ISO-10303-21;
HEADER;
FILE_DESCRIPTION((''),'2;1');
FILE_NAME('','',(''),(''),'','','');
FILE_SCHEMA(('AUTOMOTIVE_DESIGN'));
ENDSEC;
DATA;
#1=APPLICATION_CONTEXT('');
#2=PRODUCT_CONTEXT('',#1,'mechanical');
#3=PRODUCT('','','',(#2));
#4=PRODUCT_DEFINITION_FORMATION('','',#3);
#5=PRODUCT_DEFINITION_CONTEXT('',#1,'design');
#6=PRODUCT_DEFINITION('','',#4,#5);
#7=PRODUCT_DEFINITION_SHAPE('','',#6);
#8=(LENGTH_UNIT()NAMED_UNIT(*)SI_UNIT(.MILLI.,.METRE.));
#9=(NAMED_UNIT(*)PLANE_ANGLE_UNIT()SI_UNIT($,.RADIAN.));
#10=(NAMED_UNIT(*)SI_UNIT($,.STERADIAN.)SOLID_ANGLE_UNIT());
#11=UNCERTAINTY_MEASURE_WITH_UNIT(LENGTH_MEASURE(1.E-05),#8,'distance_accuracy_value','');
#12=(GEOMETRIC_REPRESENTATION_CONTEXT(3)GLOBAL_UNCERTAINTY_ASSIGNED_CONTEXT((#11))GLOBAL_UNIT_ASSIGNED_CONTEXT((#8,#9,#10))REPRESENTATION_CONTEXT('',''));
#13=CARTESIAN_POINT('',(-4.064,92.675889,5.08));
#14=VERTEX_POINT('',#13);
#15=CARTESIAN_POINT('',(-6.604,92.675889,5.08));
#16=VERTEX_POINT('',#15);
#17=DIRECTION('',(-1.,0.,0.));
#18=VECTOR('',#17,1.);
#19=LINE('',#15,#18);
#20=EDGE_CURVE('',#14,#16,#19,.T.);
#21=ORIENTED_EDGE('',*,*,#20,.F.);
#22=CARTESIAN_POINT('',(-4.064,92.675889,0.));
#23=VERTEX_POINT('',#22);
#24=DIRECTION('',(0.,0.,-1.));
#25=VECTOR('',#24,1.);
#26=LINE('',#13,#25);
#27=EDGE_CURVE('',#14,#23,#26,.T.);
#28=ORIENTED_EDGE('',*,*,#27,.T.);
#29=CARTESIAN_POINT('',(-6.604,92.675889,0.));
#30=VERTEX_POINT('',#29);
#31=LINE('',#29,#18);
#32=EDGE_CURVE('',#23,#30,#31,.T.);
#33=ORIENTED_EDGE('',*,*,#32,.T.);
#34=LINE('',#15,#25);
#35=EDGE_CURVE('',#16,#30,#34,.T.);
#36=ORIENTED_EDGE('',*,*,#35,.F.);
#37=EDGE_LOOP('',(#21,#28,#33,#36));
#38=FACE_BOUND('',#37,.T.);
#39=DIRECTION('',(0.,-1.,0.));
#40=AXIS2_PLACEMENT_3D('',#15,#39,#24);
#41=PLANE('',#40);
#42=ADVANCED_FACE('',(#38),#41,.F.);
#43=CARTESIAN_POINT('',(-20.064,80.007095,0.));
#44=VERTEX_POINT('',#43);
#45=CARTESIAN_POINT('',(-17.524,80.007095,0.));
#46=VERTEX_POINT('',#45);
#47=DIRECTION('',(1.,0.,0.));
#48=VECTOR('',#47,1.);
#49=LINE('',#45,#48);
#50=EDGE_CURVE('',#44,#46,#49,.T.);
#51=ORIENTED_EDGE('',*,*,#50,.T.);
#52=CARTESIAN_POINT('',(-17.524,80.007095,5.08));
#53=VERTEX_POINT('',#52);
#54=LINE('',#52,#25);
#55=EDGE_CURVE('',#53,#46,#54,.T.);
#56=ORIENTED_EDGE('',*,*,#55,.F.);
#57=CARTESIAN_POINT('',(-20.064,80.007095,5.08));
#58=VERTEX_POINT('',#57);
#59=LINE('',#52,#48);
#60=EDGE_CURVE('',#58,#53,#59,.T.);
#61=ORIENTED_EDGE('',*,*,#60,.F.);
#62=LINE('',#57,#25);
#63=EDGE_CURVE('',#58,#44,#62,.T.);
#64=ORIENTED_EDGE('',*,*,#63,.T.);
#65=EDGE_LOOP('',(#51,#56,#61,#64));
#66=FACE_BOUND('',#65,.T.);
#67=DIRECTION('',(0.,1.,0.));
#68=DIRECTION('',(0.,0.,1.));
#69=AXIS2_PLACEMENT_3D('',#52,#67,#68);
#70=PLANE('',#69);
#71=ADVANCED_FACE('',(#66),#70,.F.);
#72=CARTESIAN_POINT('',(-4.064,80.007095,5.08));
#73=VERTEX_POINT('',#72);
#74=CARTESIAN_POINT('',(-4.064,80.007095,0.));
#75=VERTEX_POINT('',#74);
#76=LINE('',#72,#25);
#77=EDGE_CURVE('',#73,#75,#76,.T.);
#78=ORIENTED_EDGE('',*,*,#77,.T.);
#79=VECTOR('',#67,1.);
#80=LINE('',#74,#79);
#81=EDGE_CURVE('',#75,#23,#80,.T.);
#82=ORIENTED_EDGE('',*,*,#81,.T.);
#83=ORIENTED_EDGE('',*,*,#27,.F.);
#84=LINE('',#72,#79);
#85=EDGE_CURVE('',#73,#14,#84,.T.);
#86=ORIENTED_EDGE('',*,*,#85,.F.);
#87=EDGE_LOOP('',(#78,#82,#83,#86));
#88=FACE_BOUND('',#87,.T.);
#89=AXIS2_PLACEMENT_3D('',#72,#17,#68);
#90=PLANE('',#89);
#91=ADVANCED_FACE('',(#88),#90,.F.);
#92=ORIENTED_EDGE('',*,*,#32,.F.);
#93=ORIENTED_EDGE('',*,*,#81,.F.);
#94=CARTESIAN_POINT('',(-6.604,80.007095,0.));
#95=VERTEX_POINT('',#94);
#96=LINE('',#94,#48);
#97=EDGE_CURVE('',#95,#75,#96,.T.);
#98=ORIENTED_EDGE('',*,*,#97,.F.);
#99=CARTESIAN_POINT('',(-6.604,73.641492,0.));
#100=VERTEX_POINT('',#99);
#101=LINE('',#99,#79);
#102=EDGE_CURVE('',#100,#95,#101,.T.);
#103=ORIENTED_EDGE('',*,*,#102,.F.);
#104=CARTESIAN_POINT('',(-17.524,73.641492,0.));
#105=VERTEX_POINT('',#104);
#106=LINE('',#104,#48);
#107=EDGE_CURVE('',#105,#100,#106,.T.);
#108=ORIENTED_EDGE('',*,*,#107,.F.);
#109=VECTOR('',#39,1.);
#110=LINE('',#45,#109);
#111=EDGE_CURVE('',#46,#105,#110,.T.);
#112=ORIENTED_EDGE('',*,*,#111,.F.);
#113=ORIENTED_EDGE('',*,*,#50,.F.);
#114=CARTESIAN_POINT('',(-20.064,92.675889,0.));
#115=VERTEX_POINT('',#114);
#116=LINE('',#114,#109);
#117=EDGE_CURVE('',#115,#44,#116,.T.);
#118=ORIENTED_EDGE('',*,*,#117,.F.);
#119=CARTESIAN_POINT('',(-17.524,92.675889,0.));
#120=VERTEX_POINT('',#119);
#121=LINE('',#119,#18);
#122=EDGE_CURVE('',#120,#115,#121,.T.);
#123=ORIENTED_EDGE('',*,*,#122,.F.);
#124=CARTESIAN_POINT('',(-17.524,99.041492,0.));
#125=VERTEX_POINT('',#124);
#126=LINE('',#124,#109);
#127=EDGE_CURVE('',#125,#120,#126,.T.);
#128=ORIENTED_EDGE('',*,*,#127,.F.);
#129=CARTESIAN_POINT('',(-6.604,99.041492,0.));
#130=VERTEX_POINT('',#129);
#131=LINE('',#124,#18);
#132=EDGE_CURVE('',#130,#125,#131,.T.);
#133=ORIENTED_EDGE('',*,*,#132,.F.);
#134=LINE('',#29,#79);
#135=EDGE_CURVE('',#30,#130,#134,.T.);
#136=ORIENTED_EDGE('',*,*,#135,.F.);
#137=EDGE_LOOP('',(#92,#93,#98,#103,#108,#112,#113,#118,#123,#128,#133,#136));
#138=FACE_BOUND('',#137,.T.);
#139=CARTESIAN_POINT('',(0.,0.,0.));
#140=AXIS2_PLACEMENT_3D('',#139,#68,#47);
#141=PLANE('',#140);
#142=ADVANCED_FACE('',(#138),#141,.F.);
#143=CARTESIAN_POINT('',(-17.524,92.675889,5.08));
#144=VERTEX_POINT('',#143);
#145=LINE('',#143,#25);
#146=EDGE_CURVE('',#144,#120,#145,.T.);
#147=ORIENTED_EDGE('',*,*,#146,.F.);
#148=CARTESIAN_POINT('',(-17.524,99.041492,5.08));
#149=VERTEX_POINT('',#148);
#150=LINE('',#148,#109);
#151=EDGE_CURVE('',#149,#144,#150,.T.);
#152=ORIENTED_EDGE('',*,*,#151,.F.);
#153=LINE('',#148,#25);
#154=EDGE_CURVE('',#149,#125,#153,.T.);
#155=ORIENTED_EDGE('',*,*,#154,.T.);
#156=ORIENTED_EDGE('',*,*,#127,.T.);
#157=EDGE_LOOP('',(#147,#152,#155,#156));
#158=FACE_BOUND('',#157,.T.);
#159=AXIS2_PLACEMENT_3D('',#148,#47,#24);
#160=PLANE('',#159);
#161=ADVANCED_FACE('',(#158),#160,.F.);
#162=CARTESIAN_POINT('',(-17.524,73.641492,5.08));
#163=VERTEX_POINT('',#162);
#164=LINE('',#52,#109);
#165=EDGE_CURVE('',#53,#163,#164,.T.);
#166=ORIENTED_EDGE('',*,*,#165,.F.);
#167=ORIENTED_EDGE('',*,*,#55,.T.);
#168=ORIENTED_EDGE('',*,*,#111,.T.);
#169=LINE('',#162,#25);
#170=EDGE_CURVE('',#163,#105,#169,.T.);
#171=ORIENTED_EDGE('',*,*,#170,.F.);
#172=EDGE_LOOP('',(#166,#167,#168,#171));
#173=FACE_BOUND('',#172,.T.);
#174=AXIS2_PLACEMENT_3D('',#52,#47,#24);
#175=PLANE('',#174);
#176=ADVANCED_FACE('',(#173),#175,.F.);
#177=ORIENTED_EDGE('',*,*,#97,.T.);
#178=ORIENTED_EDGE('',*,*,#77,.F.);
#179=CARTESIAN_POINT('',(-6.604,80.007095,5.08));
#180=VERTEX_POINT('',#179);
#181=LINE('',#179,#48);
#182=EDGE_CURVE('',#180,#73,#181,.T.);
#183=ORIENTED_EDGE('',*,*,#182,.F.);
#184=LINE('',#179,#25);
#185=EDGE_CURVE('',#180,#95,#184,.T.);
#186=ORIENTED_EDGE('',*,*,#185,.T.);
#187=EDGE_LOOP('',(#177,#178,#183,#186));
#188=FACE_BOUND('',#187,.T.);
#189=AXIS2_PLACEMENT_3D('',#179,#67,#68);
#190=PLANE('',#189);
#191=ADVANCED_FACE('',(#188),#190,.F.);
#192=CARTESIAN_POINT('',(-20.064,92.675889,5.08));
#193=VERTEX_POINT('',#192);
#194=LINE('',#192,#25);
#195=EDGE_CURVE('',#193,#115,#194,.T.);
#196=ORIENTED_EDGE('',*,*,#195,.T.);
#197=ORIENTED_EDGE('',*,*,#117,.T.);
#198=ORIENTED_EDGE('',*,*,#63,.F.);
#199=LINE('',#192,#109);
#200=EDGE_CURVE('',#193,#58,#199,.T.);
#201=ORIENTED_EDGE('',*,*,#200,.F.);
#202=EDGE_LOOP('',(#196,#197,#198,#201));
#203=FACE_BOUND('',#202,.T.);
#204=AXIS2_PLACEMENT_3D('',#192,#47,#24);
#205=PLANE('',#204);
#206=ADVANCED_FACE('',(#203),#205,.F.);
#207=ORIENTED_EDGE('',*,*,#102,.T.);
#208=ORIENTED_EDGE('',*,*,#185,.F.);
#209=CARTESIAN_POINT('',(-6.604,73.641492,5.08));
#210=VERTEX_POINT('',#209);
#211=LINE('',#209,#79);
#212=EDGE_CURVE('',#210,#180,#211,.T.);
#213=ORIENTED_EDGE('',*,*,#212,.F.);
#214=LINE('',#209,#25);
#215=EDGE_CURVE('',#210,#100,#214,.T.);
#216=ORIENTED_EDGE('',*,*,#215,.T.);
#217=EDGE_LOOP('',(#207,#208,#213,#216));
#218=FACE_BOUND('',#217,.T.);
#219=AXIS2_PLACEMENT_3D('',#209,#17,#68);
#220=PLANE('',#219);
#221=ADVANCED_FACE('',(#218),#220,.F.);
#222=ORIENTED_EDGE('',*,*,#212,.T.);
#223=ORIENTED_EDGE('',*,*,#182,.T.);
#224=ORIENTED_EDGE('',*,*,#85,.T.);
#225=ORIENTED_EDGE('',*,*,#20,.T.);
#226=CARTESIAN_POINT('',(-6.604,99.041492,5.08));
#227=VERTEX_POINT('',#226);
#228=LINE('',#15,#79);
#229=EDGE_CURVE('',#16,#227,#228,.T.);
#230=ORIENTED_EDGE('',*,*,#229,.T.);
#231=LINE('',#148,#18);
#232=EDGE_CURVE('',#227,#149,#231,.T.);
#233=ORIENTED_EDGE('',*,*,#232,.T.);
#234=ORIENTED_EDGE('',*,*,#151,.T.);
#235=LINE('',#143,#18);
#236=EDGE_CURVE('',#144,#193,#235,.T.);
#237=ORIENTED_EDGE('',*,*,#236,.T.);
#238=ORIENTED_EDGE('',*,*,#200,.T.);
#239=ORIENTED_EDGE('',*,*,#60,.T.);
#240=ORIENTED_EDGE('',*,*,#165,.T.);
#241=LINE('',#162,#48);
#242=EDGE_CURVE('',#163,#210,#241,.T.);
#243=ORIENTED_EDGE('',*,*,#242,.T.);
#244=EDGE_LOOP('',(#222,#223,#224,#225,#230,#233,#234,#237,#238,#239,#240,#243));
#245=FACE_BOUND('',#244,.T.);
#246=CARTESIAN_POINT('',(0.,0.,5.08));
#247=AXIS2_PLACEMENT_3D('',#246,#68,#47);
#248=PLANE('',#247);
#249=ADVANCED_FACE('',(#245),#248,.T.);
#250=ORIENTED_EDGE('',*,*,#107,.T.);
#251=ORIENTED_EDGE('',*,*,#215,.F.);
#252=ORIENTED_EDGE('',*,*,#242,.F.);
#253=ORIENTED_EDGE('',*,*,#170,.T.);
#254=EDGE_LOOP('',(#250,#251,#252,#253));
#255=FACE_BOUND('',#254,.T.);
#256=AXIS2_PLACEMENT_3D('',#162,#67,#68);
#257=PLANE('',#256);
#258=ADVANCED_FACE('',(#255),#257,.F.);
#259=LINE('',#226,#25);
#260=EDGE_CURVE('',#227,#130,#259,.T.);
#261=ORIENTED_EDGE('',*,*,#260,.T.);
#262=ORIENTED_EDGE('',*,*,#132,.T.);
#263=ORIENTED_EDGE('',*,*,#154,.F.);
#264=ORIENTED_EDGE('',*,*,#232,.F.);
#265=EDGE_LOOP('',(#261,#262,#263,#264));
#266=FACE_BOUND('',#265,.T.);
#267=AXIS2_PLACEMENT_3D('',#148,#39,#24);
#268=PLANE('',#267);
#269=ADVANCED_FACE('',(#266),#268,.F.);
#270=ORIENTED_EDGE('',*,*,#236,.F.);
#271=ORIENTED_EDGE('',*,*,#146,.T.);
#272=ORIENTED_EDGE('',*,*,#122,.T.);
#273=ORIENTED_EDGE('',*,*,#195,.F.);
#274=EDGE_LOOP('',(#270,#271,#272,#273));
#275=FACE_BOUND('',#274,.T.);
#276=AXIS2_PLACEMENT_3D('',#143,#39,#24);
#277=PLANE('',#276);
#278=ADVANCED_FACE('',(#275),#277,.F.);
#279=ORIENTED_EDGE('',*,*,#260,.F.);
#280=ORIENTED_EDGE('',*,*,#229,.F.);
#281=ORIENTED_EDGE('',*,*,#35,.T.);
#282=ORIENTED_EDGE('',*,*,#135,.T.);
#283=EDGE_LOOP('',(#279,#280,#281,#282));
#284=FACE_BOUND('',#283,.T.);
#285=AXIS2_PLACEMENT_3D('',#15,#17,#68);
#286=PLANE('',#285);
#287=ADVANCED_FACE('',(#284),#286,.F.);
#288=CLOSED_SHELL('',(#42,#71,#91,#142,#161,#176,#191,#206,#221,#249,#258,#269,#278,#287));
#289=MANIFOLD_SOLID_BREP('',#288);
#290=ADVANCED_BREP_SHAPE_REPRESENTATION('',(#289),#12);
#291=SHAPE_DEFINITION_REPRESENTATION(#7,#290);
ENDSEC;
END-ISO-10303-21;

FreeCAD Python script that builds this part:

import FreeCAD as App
import Part
import Sketcher
from FreeCAD import Vector
Q = App.Units.Quantity

doc = App.newDocument("Part")
body = doc.addObject("PartDesign::Body", "Body")

sketch1 = doc.addObject("Sketcher::SketchObject", "Sketch")
body.addObject(sketch1)
sketch1.AttachmentSupport = (doc.XY_Plane, [""])
sketch1.MapMode = "FlatFace"
sketch1.addGeometry(Part.LineSegment(Vector(-17.5, 73.6, 0), Vector(-6.6, 73.6, 0)), False)
sketch1.addGeometry(Part.LineSegment(Vector(-6.6, 73.6, 0), Vector(-6.6, 80, 0)), False)
sketch1.addGeometry(Part.LineSegment(Vector(-6.6, 80, 0), Vector(-4.1, 80, 0)), False)
sketch1.addGeometry(Part.LineSegment(Vector(-4.1, 80, 0), Vector(-4.1, 92.7, 0)), False)
sketch1.addGeometry(Part.LineSegment(Vector(-4.1, 92.7, 0), Vector(-6.6, 92.7, 0)), False)
sketch1.addGeometry(Part.LineSegment(Vector(-6.6, 92.7, 0), Vector(-6.6, 99, 0)), False)
sketch1.addGeometry(Part.LineSegment(Vector(-6.6, 99, 0), Vector(-17.5, 99, 0)), False)
sketch1.addGeometry(Part.LineSegment(Vector(-17.5, 99, 0), Vector(-17.5, 92.7, 0)), False)
sketch1.addGeometry(Part.LineSegment(Vector(-17.5, 92.7, 0), Vector(-20.1, 92.7, 0)), False)
sketch1.addGeometry(Part.LineSegment(Vector(-20.1, 92.7, 0), Vector(-20.1, 80, 0)), False)
sketch1.addGeometry(Part.LineSegment(Vector(-20.1, 80, 0), Vector(-17.5, 80, 0)), False)
sketch1.addGeometry(Part.LineSegment(Vector(-17.5, 80, 0), Vector(-17.5, 73.6, 0)), False)
sketch1.addConstraint(Sketcher.Constraint("Coincident", 0, 2, 1, 1))
sketch1.addConstraint(Sketcher.Constraint("Coincident", 1, 2, 2, 1))
sketch1.addConstraint(Sketcher.Constraint("Coincident", 2, 2, 3, 1))
sketch1.addConstraint(Sketcher.Constraint("Coincident", 3, 2, 4, 1))
sketch1.addConstraint(Sketcher.Constraint("Coincident", 4, 2, 5, 1))
sketch1.addConstraint(Sketcher.Constraint("Coincident", 5, 2, 6, 1))
sketch1.addConstraint(Sketcher.Constraint("Coincident", 6, 2, 7, 1))
sketch1.addConstraint(Sketcher.Constraint("Coincident", 7, 2, 8, 1))
sketch1.addConstraint(Sketcher.Constraint("Coincident", 8, 2, 9, 1))
sketch1.addConstraint(Sketcher.Constraint("Coincident", 9, 2, 10, 1))
sketch1.addConstraint(Sketcher.Constraint("Coincident", 10, 2, 11, 1))
sketch1.addConstraint(Sketcher.Constraint("Coincident", 11, 2, 0, 1))
sketch1.addConstraint(Sketcher.Constraint("Horizontal", 0))
sketch1.addConstraint(Sketcher.Constraint("Vertical", 1))
sketch1.addConstraint(Sketcher.Constraint("Horizontal", 2))
sketch1.addConstraint(Sketcher.Constraint("Vertical", 3))
sketch1.addConstraint(Sketcher.Constraint("Horizontal", 4))
sketch1.addConstraint(Sketcher.Constraint("Vertical", 5))
sketch1.addConstraint(Sketcher.Constraint("Horizontal", 6))
sketch1.addConstraint(Sketcher.Constraint("Vertical", 7))
sketch1.addConstraint(Sketcher.Constraint("Horizontal", 8))
sketch1.addConstraint(Sketcher.Constraint("Vertical", 9))
sketch1.addConstraint(Sketcher.Constraint("Horizontal", 10))
sketch1.addConstraint(Sketcher.Constraint("Vertical", 11))
sketch1.addConstraint(Sketcher.Constraint("Horizontal", 4, 2, 7, 2))
sketch1.addConstraint(Sketcher.Constraint("Horizontal", 2, 2, 9, 2))
sketch1.addConstraint(Sketcher.Constraint("Vertical", 1, 2, 4, 2))
sketch1.addConstraint(Sketcher.Constraint("Vertical", 7, 2, 10, 2))
sketch1.addConstraint(Sketcher.Constraint("Equal", 4, 8))
sketch1.addConstraint(Sketcher.Constraint("Equal", 1, 5))
sketch1.addConstraint(Sketcher.Constraint("DistanceX", 2, 1, 2, 2, Q("0.1 in")))
sketch1.addConstraint(Sketcher.Constraint("DistanceY", 0, 2, 5, 2, Q("1 in")))
sketch1.addConstraint(Sketcher.Constraint("DistanceX", 0, 2, -1, 1, Q("0.26 in")))
sketch1.addConstraint(Sketcher.Constraint("DistanceX", 0, 1, 0, 2, Q("10.92 mm")))
sketch1.addConstraint(Sketcher.Constraint("DistanceY", 1, 1, 1, 2, Q("6.365603 mm")))
sketch1.addConstraint(Sketcher.Constraint("DistanceY", -1, 1, 0, 2, Q("73.641492 mm")))
pad1 = doc.addObject("PartDesign::Pad", "Pad")
body.addObject(pad1)
pad1.Profile = sketch1
pad1.Length = Q("0.2 in")

doc.recompute()
